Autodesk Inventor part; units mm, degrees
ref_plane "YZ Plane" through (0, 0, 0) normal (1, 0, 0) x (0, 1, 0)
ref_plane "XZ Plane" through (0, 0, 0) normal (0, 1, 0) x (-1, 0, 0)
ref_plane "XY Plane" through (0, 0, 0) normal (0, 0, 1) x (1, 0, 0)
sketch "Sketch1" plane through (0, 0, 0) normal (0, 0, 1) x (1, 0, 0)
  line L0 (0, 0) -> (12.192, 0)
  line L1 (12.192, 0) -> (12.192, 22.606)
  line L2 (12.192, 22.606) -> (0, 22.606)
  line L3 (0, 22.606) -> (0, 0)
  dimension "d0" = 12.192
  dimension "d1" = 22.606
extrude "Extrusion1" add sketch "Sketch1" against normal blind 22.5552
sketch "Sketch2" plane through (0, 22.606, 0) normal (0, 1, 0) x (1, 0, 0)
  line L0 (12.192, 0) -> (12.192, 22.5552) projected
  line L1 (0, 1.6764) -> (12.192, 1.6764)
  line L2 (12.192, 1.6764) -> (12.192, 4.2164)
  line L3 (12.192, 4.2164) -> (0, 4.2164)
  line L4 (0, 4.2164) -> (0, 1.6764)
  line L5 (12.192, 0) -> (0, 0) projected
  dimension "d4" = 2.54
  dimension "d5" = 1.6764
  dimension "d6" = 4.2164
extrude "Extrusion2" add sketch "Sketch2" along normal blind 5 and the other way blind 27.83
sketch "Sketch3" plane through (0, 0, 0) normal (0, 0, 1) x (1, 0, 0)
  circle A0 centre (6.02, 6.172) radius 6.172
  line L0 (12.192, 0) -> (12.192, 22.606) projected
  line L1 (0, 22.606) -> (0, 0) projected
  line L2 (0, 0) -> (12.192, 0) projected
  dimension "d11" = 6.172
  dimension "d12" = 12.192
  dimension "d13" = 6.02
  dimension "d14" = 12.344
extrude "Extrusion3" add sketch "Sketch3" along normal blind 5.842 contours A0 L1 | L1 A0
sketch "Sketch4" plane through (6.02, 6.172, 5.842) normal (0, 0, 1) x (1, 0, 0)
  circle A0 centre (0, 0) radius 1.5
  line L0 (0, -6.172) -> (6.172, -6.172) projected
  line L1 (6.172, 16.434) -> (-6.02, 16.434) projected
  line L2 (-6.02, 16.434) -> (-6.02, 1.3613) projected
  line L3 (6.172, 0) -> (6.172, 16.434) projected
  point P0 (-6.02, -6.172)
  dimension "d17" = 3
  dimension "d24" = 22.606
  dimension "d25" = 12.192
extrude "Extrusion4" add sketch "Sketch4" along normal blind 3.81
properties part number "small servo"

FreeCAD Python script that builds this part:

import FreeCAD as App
import Part
import Sketcher
Q = App.Units.Quantity

doc = App.newDocument("Part")
body = doc.addObject("PartDesign::Body", "Body")

sketch1 = body.newObject("Sketcher::SketchObject", "Sketch")
sketch1.AttachmentSupport = (doc.getObject("XY_Plane"), [""])
sketch1.MapMode = "FlatFace"
sketch1.addGeometry([
    Part.LineSegment(App.Vector(0, 22.606, 0), App.Vector(0, 0, 0)),
    Part.LineSegment(App.Vector(0, 0, 0), App.Vector(12.192, 0, 0)),
    Part.LineSegment(App.Vector(12.192, 0, 0), App.Vector(12.192, 22.606, 0)),
    Part.LineSegment(App.Vector(12.192, 22.606, 0), App.Vector(0, 22.606, 0)),
], False)
sketch1.addConstraint([
    Sketcher.Constraint("Coincident", 0, 2, 1, 1),
    Sketcher.Constraint("Coincident", 1, 2, 2, 1),
    Sketcher.Constraint("Coincident", 2, 2, 3, 1),
    Sketcher.Constraint("Coincident", 3, 2, 0, 1),
    Sketcher.Constraint("Vertical", 0),
    Sketcher.Constraint("Horizontal", 1),
    Sketcher.Constraint("Vertical", 2),
    Sketcher.Constraint("Horizontal", 3),
    Sketcher.Constraint("Coincident", 0, 2, -1, 1),
    Sketcher.Constraint("DistanceX", 1, 1, 1, 2, Q("0.48 in")),
    Sketcher.Constraint("DistanceY", 0, 2, 0, 1, Q("0.89 in")),
])
pad1 = body.newObject("PartDesign::Pad", "Pad")
pad1.Profile = sketch1
pad1.Length = Q("0.888 in")
pad1.Reversed = True

sketch2 = body.newObject("Sketcher::SketchObject", "Sketch001")
sketch2.AttachmentSupport = (doc.getObject("XZ_Plane"), [""])
sketch2.MapMode = "FlatFace"
sketch2.AttachmentOffset = App.Placement(App.Vector(0, 0, -0.89 * 25.4), App.Rotation())
sketch2.addGeometry([
    Part.LineSegment(App.Vector(0, -1.6764, 0), App.Vector(12.192, -1.6764, 0)),
    Part.LineSegment(App.Vector(12.192, -1.6764, 0), App.Vector(12.192, -4.2164, 0)),
    Part.LineSegment(App.Vector(12.192, -4.2164, 0), App.Vector(0, -4.2164, 0)),
    Part.LineSegment(App.Vector(0, -4.2164, 0), App.Vector(0, -1.6764, 0)),
], False)
sketch2.addConstraint([
    Sketcher.Constraint("Coincident", 0, 2, 1, 1),
    Sketcher.Constraint("Coincident", 1, 2, 2, 1),
    Sketcher.Constraint("Coincident", 2, 2, 3, 1),
    Sketcher.Constraint("Coincident", 3, 2, 0, 1),
    Sketcher.Constraint("Horizontal", 0),
    Sketcher.Constraint("Vertical", 1),
    Sketcher.Constraint("Horizontal", 2),
    Sketcher.Constraint("Vertical", 3),
    Sketcher.Constraint("PointOnObject", 2, 2, -2),
    Sketcher.Constraint("DistanceY", 1, 2, 1, 1, Q("0.1 in")),
    Sketcher.Constraint("DistanceY", 0, 2, -1, 1, Q("0.066 in")),
    Sketcher.Constraint("DistanceX", 0, 1, 0, 2, Q("0.48 in")),
])
pad2 = body.newObject("PartDesign::Pad", "Pad001")
pad2.Profile = sketch2
pad2.Type = "TwoLengths"
pad2.Length = 5
pad2.Length2 = 27.83
pad2.Reversed = True

sketch3 = body.newObject("Sketcher::SketchObject", "Sketch002")
sketch3.AttachmentSupport = (doc.getObject("XY_Plane"), [""])
sketch3.MapMode = "FlatFace"
sketch3.addGeometry(Part.Circle(App.Vector(6.02, 6.172, 0), App.Vector(0, 0, 1), 6.172), False)
sketch3.addConstraint([
    Sketcher.Constraint("Diameter", 0, Q("12.344 mm")),
    Sketcher.Constraint("DistanceX", -1, 1, 0, 3, Q("0.237 in")),
    Sketcher.Constraint("DistanceY", -1, 1, 0, 3, Q("0.243 in")),
])
pad3 = body.newObject("PartDesign::Pad", "Pad002")
pad3.Profile = sketch3
pad3.Length = Q("0.23 in")

sketch4 = body.newObject("Sketcher::SketchObject", "Sketch003")
sketch4.AttachmentSupport = (doc.getObject("XY_Plane"), [""])
sketch4.MapMode = "FlatFace"
sketch4.AttachmentOffset = App.Placement(App.Vector(0, 0, 0.23 * 25.4), App.Rotation())
sketch4.addGeometry(Part.Circle(App.Vector(6.02, 6.172, 0), App.Vector(0, 0, 1), 1.5), False)
sketch4.addConstraint([
    Sketcher.Constraint("Diameter", 0, Q("0.1181 in")),
    Sketcher.Constraint("DistanceX", -1, 1, 0, 3, Q("0.237 in")),
    Sketcher.Constraint("DistanceY", -1, 1, 0, 3, Q("0.243 in")),
])
pad4 = body.newObject("PartDesign::Pad", "Pad003")
pad4.Profile = sketch4
pad4.Length = Q("0.15 in")

doc.recompute()
